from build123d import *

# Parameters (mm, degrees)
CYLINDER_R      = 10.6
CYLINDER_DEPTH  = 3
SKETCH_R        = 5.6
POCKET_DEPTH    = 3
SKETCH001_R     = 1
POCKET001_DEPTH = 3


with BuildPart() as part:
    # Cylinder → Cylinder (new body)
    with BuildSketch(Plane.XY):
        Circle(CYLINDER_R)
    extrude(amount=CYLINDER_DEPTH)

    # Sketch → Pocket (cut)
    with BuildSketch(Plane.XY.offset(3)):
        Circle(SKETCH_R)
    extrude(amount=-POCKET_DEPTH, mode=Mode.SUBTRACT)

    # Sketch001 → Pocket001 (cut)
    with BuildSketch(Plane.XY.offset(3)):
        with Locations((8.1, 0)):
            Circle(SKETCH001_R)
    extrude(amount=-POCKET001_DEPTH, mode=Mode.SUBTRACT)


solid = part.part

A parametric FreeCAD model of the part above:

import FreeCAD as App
import Part
import Sketcher
Q = App.Units.Quantity

doc = App.newDocument("Part")
body = doc.addObject("PartDesign::Body", "Body")

# Sketch on XY plane
sketch1 = body.newObject("Sketcher::SketchObject", "Sketch")
sketch1.AttachmentSupport = (doc.getObject("XY_Plane"), [""])
sketch1.MapMode = "FlatFace"
sketch1.addGeometry(Part.Circle(App.Vector(0, 0, 0), App.Vector(0, 0, 1), 11), False)
sketch1.addConstraint([
    Sketcher.Constraint("Coincident", 0, 3, -1, 1),
    Sketcher.Constraint("Diameter", 0, Q("21.2 mm")),
])
pad1 = body.newObject("PartDesign::Pad", "Pad")
pad1.Profile = sketch1
pad1.Length = 3

# Sketch on XY plane
sketch2 = body.newObject("Sketcher::SketchObject", "Sketch001")
sketch2.AttachmentSupport = (doc.getObject("XY_Plane"), [""])
sketch2.MapMode = "FlatFace"
sketch2.AttachmentOffset = App.Placement(App.Vector(0, 0, 3), App.Rotation())
sketch2.addGeometry(Part.Circle(App.Vector(0, 0, 0), App.Vector(0, 0, 1), 6), False)
sketch2.addConstraint([
    Sketcher.Constraint("Coincident", 0, 3, -1, 1),
    Sketcher.Constraint("Diameter", 0, Q("11.2 mm")),
])
pocket1 = body.newObject("PartDesign::Pocket", "Pocket")
pocket1.Profile = sketch2
pocket1.Length = 3

# Sketch on XY plane
sketch3 = body.newObject("Sketcher::SketchObject", "Sketch002")
sketch3.AttachmentSupport = (doc.getObject("XY_Plane"), [""])
sketch3.MapMode = "FlatFace"
sketch3.AttachmentOffset = App.Placement(App.Vector(0, 0, 3), App.Rotation())
sketch3.addGeometry(Part.Circle(App.Vector(8.1, 0, 0), App.Vector(0, 0, 1), 1), False)
sketch3.addConstraint([
    Sketcher.Constraint("PointOnObject", 0, 3, -1),
    Sketcher.Constraint("Diameter", 0, Q("2 mm")),
    Sketcher.Constraint("DistanceX", -1, 1, 0, 3, Q("8.1 mm")),
])
pocket2 = body.newObject("PartDesign::Pocket", "Pocket001")
pocket2.Profile = sketch3
pocket2.Length = 3

doc.recompute()
